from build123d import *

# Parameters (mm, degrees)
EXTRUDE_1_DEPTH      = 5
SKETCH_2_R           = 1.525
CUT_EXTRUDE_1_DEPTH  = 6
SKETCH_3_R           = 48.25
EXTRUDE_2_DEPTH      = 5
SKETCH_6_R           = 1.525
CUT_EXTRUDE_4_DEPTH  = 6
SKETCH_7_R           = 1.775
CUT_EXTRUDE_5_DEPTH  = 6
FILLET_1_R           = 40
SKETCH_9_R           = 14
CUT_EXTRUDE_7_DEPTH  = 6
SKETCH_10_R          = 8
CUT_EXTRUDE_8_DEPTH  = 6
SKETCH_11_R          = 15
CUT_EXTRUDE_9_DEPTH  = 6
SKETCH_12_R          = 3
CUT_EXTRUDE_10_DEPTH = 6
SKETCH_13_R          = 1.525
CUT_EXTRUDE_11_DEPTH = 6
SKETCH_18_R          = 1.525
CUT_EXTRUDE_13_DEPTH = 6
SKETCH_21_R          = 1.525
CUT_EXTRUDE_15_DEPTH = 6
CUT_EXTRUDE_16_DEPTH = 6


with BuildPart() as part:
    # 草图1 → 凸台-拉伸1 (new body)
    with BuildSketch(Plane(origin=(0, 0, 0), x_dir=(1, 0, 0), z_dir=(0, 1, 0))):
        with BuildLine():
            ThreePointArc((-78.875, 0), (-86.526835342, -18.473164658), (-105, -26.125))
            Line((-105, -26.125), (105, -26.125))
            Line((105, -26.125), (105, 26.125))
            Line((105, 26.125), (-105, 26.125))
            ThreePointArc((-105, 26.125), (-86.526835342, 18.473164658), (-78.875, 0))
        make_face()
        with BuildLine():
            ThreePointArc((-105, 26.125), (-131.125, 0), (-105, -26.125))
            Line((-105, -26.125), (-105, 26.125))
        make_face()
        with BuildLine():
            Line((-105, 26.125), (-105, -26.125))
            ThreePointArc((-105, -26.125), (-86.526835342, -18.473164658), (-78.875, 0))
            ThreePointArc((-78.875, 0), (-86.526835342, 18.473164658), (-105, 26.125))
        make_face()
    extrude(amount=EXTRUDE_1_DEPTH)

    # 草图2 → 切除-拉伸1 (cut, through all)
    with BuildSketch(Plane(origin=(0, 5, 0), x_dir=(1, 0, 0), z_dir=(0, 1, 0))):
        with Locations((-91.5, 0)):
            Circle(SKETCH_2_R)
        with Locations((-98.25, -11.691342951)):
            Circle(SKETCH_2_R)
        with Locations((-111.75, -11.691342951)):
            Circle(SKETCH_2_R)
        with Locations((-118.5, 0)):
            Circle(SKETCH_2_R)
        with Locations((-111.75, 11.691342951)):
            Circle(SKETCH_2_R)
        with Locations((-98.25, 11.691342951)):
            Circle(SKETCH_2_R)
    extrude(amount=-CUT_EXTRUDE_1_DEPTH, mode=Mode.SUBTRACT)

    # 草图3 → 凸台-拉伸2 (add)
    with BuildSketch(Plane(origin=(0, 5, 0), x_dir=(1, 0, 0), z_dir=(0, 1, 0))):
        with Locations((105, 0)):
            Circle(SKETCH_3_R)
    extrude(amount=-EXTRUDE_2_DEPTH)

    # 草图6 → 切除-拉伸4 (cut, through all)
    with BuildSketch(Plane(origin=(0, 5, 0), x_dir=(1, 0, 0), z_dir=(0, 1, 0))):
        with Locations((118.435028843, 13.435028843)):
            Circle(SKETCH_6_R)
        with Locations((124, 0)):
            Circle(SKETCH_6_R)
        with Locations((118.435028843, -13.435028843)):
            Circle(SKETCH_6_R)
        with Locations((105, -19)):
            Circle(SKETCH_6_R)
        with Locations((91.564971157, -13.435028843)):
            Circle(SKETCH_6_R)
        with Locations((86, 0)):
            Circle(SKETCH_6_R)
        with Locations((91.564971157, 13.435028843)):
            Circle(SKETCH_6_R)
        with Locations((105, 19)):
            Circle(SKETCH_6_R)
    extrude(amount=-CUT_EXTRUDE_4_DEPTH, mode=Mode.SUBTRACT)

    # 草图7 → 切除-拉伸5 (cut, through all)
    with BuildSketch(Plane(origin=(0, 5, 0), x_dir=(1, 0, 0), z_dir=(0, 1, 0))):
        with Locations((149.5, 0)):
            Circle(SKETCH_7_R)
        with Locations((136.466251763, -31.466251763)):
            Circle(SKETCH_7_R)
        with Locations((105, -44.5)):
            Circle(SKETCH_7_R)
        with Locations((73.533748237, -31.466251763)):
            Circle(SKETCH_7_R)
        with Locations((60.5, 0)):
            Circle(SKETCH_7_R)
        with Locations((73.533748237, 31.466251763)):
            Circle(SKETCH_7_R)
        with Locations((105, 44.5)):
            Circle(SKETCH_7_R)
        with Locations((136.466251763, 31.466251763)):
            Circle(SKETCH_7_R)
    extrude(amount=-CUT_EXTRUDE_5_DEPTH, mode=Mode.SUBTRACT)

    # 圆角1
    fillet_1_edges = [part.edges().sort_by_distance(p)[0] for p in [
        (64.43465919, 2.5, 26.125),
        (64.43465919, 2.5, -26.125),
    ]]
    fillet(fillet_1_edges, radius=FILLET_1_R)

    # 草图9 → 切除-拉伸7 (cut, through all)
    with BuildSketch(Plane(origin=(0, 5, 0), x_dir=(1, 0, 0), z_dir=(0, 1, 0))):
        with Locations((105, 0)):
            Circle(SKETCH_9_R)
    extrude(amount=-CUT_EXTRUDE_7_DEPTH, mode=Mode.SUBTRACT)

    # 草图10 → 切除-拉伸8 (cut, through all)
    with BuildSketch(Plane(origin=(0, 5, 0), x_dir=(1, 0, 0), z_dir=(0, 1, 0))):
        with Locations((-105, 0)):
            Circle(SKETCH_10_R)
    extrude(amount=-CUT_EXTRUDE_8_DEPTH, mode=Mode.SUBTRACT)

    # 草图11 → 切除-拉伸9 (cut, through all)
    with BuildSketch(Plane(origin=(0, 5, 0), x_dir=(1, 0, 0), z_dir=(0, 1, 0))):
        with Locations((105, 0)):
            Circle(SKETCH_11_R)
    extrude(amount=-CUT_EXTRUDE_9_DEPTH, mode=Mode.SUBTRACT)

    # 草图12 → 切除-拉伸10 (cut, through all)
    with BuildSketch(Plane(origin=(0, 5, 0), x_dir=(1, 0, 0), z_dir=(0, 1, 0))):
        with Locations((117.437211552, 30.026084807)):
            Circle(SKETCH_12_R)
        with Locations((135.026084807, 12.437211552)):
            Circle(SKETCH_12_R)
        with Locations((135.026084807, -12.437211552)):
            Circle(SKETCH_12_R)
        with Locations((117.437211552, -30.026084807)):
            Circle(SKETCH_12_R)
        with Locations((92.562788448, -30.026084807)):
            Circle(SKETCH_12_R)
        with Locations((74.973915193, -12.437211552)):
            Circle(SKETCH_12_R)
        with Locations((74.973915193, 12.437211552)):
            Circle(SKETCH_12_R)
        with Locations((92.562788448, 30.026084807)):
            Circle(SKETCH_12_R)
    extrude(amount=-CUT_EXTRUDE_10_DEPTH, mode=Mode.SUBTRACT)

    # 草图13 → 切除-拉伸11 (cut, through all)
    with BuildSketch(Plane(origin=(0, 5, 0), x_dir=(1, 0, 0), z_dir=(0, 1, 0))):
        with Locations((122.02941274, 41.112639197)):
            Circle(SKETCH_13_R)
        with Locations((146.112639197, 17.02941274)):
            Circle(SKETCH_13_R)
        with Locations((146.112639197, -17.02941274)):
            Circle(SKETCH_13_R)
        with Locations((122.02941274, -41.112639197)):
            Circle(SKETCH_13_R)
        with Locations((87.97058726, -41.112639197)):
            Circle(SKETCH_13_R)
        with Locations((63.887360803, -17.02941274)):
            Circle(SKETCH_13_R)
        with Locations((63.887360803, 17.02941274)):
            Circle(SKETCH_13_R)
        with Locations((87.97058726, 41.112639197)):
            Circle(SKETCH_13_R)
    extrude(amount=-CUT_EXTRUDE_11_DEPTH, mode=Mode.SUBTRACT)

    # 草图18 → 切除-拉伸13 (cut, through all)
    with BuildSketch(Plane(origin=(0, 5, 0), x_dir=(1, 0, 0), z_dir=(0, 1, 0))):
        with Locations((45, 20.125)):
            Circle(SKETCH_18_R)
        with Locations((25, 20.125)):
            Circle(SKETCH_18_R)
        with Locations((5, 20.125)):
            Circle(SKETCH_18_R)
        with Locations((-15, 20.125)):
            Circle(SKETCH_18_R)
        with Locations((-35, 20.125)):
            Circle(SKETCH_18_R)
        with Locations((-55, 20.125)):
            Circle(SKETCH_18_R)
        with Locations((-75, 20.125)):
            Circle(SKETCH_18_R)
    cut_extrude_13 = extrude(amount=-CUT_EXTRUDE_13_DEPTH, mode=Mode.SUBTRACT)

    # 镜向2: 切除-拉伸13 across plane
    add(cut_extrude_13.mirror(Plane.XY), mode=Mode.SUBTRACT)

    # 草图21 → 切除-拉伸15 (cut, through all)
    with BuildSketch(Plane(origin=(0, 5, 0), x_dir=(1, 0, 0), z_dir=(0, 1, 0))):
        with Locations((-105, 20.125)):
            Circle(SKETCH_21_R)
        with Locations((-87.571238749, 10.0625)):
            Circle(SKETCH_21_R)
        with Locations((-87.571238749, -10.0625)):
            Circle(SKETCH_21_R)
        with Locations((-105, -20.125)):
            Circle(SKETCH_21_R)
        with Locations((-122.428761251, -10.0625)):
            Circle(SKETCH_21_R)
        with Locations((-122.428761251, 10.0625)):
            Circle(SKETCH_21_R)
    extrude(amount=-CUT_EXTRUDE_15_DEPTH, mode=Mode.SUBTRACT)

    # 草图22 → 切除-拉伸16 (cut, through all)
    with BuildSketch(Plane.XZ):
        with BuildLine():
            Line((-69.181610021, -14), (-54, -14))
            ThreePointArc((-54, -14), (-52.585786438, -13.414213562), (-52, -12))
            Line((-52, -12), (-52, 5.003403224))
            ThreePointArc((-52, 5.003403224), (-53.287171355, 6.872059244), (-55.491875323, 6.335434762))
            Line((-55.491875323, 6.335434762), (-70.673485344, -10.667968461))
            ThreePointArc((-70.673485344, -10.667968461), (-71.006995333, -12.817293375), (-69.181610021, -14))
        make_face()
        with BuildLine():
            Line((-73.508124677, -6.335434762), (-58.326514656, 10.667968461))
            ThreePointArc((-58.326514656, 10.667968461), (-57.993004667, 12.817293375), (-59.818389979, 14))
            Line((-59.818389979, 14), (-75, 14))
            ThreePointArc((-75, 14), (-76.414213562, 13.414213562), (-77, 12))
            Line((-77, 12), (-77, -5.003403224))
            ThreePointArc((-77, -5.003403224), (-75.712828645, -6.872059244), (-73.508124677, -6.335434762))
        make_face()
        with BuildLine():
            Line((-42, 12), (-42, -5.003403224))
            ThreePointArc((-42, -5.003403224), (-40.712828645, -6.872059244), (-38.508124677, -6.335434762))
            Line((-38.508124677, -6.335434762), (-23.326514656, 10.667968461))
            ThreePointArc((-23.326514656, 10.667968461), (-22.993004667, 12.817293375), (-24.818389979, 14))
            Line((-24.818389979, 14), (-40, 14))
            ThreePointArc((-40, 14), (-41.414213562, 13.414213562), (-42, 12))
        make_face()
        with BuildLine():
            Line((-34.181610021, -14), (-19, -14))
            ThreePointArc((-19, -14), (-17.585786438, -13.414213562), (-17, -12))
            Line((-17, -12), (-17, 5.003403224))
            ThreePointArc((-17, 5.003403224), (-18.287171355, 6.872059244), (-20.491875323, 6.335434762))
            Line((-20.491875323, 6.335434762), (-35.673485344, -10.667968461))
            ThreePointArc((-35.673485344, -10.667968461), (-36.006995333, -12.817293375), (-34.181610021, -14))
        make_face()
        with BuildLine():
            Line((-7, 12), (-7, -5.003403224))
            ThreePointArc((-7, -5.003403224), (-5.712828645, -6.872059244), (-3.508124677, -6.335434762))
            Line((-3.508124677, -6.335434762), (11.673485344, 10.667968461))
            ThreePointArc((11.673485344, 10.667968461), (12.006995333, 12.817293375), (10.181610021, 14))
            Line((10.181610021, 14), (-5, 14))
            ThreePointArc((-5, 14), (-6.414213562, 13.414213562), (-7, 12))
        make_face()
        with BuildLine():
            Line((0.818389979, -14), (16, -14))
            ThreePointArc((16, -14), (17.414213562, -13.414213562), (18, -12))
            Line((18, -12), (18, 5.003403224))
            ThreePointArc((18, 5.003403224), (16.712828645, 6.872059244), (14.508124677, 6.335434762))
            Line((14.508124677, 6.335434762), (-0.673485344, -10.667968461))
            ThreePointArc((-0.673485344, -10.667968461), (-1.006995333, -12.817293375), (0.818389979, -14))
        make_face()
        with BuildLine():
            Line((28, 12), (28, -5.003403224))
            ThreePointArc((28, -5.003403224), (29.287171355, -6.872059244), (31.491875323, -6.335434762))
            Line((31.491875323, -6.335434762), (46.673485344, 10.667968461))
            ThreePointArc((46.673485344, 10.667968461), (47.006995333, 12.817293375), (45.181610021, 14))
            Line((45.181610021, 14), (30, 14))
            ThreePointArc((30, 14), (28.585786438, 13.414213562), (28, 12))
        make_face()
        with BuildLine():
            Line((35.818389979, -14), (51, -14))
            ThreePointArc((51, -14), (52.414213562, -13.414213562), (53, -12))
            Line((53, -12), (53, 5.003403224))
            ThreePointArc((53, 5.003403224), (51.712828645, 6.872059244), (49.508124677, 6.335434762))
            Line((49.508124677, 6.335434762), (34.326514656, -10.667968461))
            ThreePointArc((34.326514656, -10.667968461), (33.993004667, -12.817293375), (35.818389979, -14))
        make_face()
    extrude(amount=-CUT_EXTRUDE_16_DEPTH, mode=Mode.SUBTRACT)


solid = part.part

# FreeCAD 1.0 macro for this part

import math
import FreeCAD as App
import Part
import Sketcher
from FreeCAD import Vector


def edges_at(feature, points):
    """Names of the edges that pass closest to the given points."""
    edges = feature.Shape.Edges
    near = lambda p: min(range(len(edges)), key=lambda i: edges[i].distToShape(Part.Vertex(*p))[0])
    return sorted({f"Edge{near(p) + 1}" for p in points})

doc = App.newDocument("Part")
body = doc.addObject("PartDesign::Body", "Body")

# Sketch on XZ plane
sketch1 = doc.addObject("Sketcher::SketchObject", "Sketch")
body.addObject(sketch1)
sketch1.AttachmentSupport = (doc.XZ_Plane, [""])
sketch1.MapMode = "FlatFace"
sketch1.addGeometry([
    Part.LineSegment(Vector(105, 26.125, 0), Vector(105, -26.125, 0)),
    Part.LineSegment(Vector(105, -26.125, 0), Vector(-105, -26.125, 0)),
    Part.ArcOfCircle(Part.Circle(Vector(-105, 0, 0), Vector(0, 0, 1), 26.125), math.radians(90), math.radians(270)),
    Part.LineSegment(Vector(-105, 26.125, 0), Vector(105, 26.125, 0)),
], False)
sketch1.addConstraint([
    Sketcher.Constraint("Coincident", 0, 2, 1, 1),
    Sketcher.Constraint("Tangent", 1, 2, 2, 2),
    Sketcher.Constraint("Tangent", 2, 1, 3, 1),
    Sketcher.Constraint("Coincident", 3, 2, 0, 1),
    Sketcher.Constraint("Vertical", 0),
    Sketcher.Constraint("Horizontal", 1),
    Sketcher.Constraint("Horizontal", 3),
    Sketcher.Constraint("Symmetric", 0, 2, 2, 1, -1, 1),
    Sketcher.Constraint("DistanceX", 1, 2, 1, 1, 210.0),
    Sketcher.Constraint("Radius", 2, 26.125),
])
pad1 = doc.addObject("PartDesign::Pad", "Pad")
body.addObject(pad1)
pad1.Profile = sketch1
pad1.Length = 5
pad1.Reversed = True

# Sketch on XZ plane
sketch2 = doc.addObject("Sketcher::SketchObject", "Sketch001")
body.addObject(sketch2)
sketch2.AttachmentSupport = (doc.XZ_Plane, [""])
sketch2.MapMode = "FlatFace"
sketch2.AttachmentOffset = App.Placement(Vector(0, 0, -5), App.Rotation())
sketch2.addGeometry([
    Part.Circle(Vector(-91.5, 0, 0), Vector(0, 0, 1), 1.525),  # 0
    Part.Circle(Vector(-98.25, 11.691343, 0), Vector(0, 0, 1), 1.525),  # 1
    Part.Circle(Vector(-111.75, 11.691343, 0), Vector(0, 0, 1), 1.525),  # 2
    Part.Circle(Vector(-118.5, 0, 0), Vector(0, 0, 1), 1.525),  # 3
    Part.Circle(Vector(-111.75, -11.691343, 0), Vector(0, 0, 1), 1.525),  # 4
    Part.Circle(Vector(-98.25, -11.691343, 0), Vector(0, 0, 1), 1.525),  # 5
], False)
sketch2.addConstraint([
    Sketcher.Constraint("Equal", 0, 1),
    Sketcher.Constraint("Equal", 1, 2),
    Sketcher.Constraint("Equal", 2, 3),
    Sketcher.Constraint("Equal", 3, 4),
    Sketcher.Constraint("Equal", 4, 5),
    Sketcher.Constraint("Symmetric", 2, 3, 4, 3, -1),
    Sketcher.Constraint("Symmetric", 1, 3, 5, 3, -1),
    Sketcher.Constraint("PointOnObject", 0, 3, -1),
    Sketcher.Constraint("PointOnObject", 3, 3, -1),
    Sketcher.Constraint("Horizontal", 1, 3, 2, 3),
    Sketcher.Constraint("Diameter", 0, 3.05),
    Sketcher.Constraint("DistanceX", 3, 3, 0, 3, 27.0),
    Sketcher.Constraint("DistanceX", 0, 3, -1, 1, 91.5),
    Sketcher.Constraint("DistanceX", 2, 3, 1, 3, 13.5),
    Sketcher.Constraint("DistanceX", 1, 3, -1, 1, 98.25),
    Sketcher.Constraint("DistanceY", -1, 1, 1, 3, 11.691343),
])
pocket1 = doc.addObject("PartDesign::Pocket", "Pocket")
body.addObject(pocket1)
pocket1.Profile = sketch2
pocket1.Type = "ThroughAll"
pocket1.Reversed = True

# Sketch on XZ plane
sketch3 = doc.addObject("Sketcher::SketchObject", "Sketch002")
body.addObject(sketch3)
sketch3.AttachmentSupport = (doc.XZ_Plane, [""])
sketch3.MapMode = "FlatFace"
sketch3.AttachmentOffset = App.Placement(Vector(0, 0, -5), App.Rotation())
sketch3.addGeometry(Part.Circle(Vector(105, 0, 0), Vector(0, 0, 1), 48.25), False)
sketch3.addConstraint([
    Sketcher.Constraint("PointOnObject", 0, 3, -1),
    Sketcher.Constraint("Diameter", 0, 96.5),
    Sketcher.Constraint("DistanceX", -1, 1, 0, 3, 105.0),
])
pad2 = doc.addObject("PartDesign::Pad", "Pad001")
body.addObject(pad2)
pad2.Profile = sketch3
pad2.Length = 5

# Sketch on XZ plane
sketch4 = doc.addObject("Sketcher::SketchObject", "Sketch003")
body.addObject(sketch4)
sketch4.AttachmentSupport = (doc.XZ_Plane, [""])
sketch4.MapMode = "FlatFace"
sketch4.AttachmentOffset = App.Placement(Vector(0, 0, -5), App.Rotation())
sketch4.addGeometry([
    Part.Circle(Vector(118.435029, -13.435029, 0), Vector(0, 0, 1), 1.525),  # 0
    Part.Circle(Vector(124, 0, 0), Vector(0, 0, 1), 1.525),  # 1
    Part.Circle(Vector(118.435029, 13.435029, 0), Vector(0, 0, 1), 1.525),  # 2
    Part.Circle(Vector(105, 19, 0), Vector(0, 0, 1), 1.525),  # 3
    Part.Circle(Vector(91.564971, 13.435029, 0), Vector(0, 0, 1), 1.525),  # 4
    Part.Circle(Vector(86, 0, 0), Vector(0, 0, 1), 1.525),  # 5
    Part.Circle(Vector(91.564971, -13.435029, 0), Vector(0, 0, 1), 1.525),  # 6
    Part.Circle(Vector(105, -19, 0), Vector(0, 0, 1), 1.525),  # 7
], False)
sketch4.addConstraint([
    Sketcher.Constraint("Equal", 0, 1),
    Sketcher.Constraint("Equal", 1, 2),
    Sketcher.Constraint("Equal", 2, 3),
    Sketcher.Constraint("Equal", 3, 4),
    Sketcher.Constraint("Equal", 4, 5),
    Sketcher.Constraint("Equal", 5, 6),
    Sketcher.Constraint("Equal", 6, 7),
    Sketcher.Constraint("Symmetric", 0, 3, 2, 3, -1),
    Sketcher.Constraint("Symmetric", 4, 3, 6, 3, -1),
    Sketcher.Constraint("Symmetric", 3, 3, 7, 3, -1),
    Sketcher.Constraint("PointOnObject", 1, 3, -1),
    Sketcher.Constraint("PointOnObject", 5, 3, -1),
    Sketcher.Constraint("Horizontal", 2, 3, 4, 3),
    Sketcher.Constraint("Diameter", 0, 3.05),
    Sketcher.Constraint("DistanceX", -1, 1, 1, 3, 124.0),
    Sketcher.Constraint("DistanceX", -1, 1, 3, 3, 105.0),
    Sketcher.Constraint("DistanceY", -1, 1, 3, 3, 19.0),
    Sketcher.Constraint("DistanceX", -1, 1, 5, 3, 86.0),
    Sketcher.Constraint("DistanceX", -1, 1, 0, 3, 118.435029),
    Sketcher.Constraint("DistanceY", 0, 3, -1, 1, 13.435029),
    Sketcher.Constraint("DistanceX", -1, 1, 4, 3, 91.564971),
])
pocket2 = doc.addObject("PartDesign::Pocket", "Pocket001")
body.addObject(pocket2)
pocket2.Profile = sketch4
pocket2.Type = "ThroughAll"
pocket2.Reversed = True

# Sketch on XZ plane
sketch5 = doc.addObject("Sketcher::SketchObject", "Sketch004")
body.addObject(sketch5)
sketch5.AttachmentSupport = (doc.XZ_Plane, [""])
sketch5.MapMode = "FlatFace"
sketch5.AttachmentOffset = App.Placement(Vector(0, 0, -5), App.Rotation())
sketch5.addGeometry([
    Part.Circle(Vector(149.5, 0, 0), Vector(0, 0, 1), 1.775),  # 0
    Part.Circle(Vector(136.466252, 31.466252, 0), Vector(0, 0, 1), 1.775),  # 1
    Part.Circle(Vector(105, 44.5, 0), Vector(0, 0, 1), 1.775),  # 2
    Part.Circle(Vector(73.533748, 31.466252, 0), Vector(0, 0, 1), 1.775),  # 3
    Part.Circle(Vector(60.5, 0, 0), Vector(0, 0, 1), 1.775),  # 4
    Part.Circle(Vector(73.533748, -31.466252, 0), Vector(0, 0, 1), 1.775),  # 5
    Part.Circle(Vector(105, -44.5, 0), Vector(0, 0, 1), 1.775),  # 6
    Part.Circle(Vector(136.466252, -31.466252, 0), Vector(0, 0, 1), 1.775),  # 7
], False)
sketch5.addConstraint([
    Sketcher.Constraint("Equal", 0, 1),
    Sketcher.Constraint("Equal", 1, 2),
    Sketcher.Constraint("Equal", 2, 3),
    Sketcher.Constraint("Equal", 3, 4),
    Sketcher.Constraint("Equal", 4, 5),
    Sketcher.Constraint("Equal", 5, 6),
    Sketcher.Constraint("Equal", 6, 7),
    Sketcher.Constraint("Symmetric", 3, 3, 5, 3, -1),
    Sketcher.Constraint("Symmetric", 2, 3, 6, 3, -1),
    Sketcher.Constraint("Symmetric", 1, 3, 7, 3, -1),
    Sketcher.Constraint("PointOnObject", 0, 3, -1),
    Sketcher.Constraint("PointOnObject", 4, 3, -1),
    Sketcher.Constraint("Horizontal", 1, 3, 3, 3),
    Sketcher.Constraint("Diameter", 0, 3.55),
    Sketcher.Constraint("DistanceX", -1, 1, 2, 3, 105.0),
    Sketcher.Constraint("DistanceX", 4, 3, 0, 3, 89.0),
    Sketcher.Constraint("DistanceX", -1, 1, 0, 3, 149.5),
    Sketcher.Constraint("DistanceY", -1, 1, 2, 3, 44.5),
    Sketcher.Constraint("DistanceX", -1, 1, 1, 3, 136.466252),
    Sketcher.Constraint("DistanceY", -1, 1, 1, 3, 31.466252),
    Sketcher.Constraint("DistanceX", -1, 1, 3, 3, 73.533748),
])
pocket3 = doc.addObject("PartDesign::Pocket", "Pocket002")
body.addObject(pocket3)
pocket3.Profile = sketch5
pocket3.Type = "ThroughAll"
pocket3.Reversed = True
doc.recompute()

fillet = doc.addObject("PartDesign::Fillet", "Fillet")
body.addObject(fillet)
fillet.Base = (pocket3, edges_at(pocket3, [(64.435, 2.5, 26.125), (64.435, 2.5, -26.125)]))
fillet.Radius = 40

# Sketch on XZ plane
sketch6 = doc.addObject("Sketcher::SketchObject", "Sketch005")
body.addObject(sketch6)
sketch6.AttachmentSupport = (doc.XZ_Plane, [""])
sketch6.MapMode = "FlatFace"
sketch6.AttachmentOffset = App.Placement(Vector(0, 0, -5), App.Rotation())
sketch6.addGeometry(Part.Circle(Vector(105, 0, 0), Vector(0, 0, 1), 14), False)
sketch6.addConstraint([
    Sketcher.Constraint("PointOnObject", 0, 3, -1),
    Sketcher.Constraint("Diameter", 0, 28.0),
    Sketcher.Constraint("DistanceX", -1, 1, 0, 3, 105.0),
])
pocket4 = doc.addObject("PartDesign::Pocket", "Pocket003")
body.addObject(pocket4)
pocket4.Profile = sketch6
pocket4.Type = "ThroughAll"
pocket4.Reversed = True

# Sketch on XZ plane
sketch7 = doc.addObject("Sketcher::SketchObject", "Sketch006")
body.addObject(sketch7)
sketch7.AttachmentSupport = (doc.XZ_Plane, [""])
sketch7.MapMode = "FlatFace"
sketch7.AttachmentOffset = App.Placement(Vector(0, 0, -5), App.Rotation())
sketch7.addGeometry(Part.Circle(Vector(-105, 0, 0), Vector(0, 0, 1), 8), False)
sketch7.addConstraint([
    Sketcher.Constraint("PointOnObject", 0, 3, -1),
    Sketcher.Constraint("Diameter", 0, 16.0),
    Sketcher.Constraint("DistanceX", 0, 3, -1, 1, 105.0),
])
pocket5 = doc.addObject("PartDesign::Pocket", "Pocket004")
body.addObject(pocket5)
pocket5.Profile = sketch7
pocket5.Type = "ThroughAll"
pocket5.Reversed = True

# Sketch on XZ plane
sketch8 = doc.addObject("Sketcher::SketchObject", "Sketch007")
body.addObject(sketch8)
sketch8.AttachmentSupport = (doc.XZ_Plane, [""])
sketch8.MapMode = "FlatFace"
sketch8.AttachmentOffset = App.Placement(Vector(0, 0, -5), App.Rotation())
sketch8.addGeometry(Part.Circle(Vector(105, 0, 0), Vector(0, 0, 1), 15), False)
sketch8.addConstraint([
    Sketcher.Constraint("PointOnObject", 0, 3, -1),
    Sketcher.Constraint("Diameter", 0, 30.0),
    Sketcher.Constraint("DistanceX", -1, 1, 0, 3, 105.0),
])
pocket6 = doc.addObject("PartDesign::Pocket", "Pocket005")
body.addObject(pocket6)
pocket6.Profile = sketch8
pocket6.Type = "ThroughAll"
pocket6.Reversed = True

# Sketch on XZ plane
sketch9 = doc.addObject("Sketcher::SketchObject", "Sketch008")
body.addObject(sketch9)
sketch9.AttachmentSupport = (doc.XZ_Plane, [""])
sketch9.MapMode = "FlatFace"
sketch9.AttachmentOffset = App.Placement(Vector(0, 0, -5), App.Rotation())
sketch9.addGeometry([
    Part.Circle(Vector(117.437212, -30.026085, 0), Vector(0, 0, 1), 3),  # 0
    Part.Circle(Vector(135.026085, -12.437212, 0), Vector(0, 0, 1), 3),  # 1
    Part.Circle(Vector(135.026085, 12.437212, 0), Vector(0, 0, 1), 3),  # 2
    Part.Circle(Vector(117.437212, 30.026085, 0), Vector(0, 0, 1), 3),  # 3
    Part.Circle(Vector(92.562788, 30.026085, 0), Vector(0, 0, 1), 3),  # 4
    Part.Circle(Vector(74.973915, 12.437212, 0), Vector(0, 0, 1), 3),  # 5
    Part.Circle(Vector(74.973915, -12.437212, 0), Vector(0, 0, 1), 3),  # 6
    Part.Circle(Vector(92.562788, -30.026085, 0), Vector(0, 0, 1), 3),  # 7
], False)
sketch9.addConstraint([
    Sketcher.Constraint("Equal", 0, 1),
    Sketcher.Constraint("Equal", 1, 2),
    Sketcher.Constraint("Equal", 2, 3),
    Sketcher.Constraint("Equal", 3, 4),
    Sketcher.Constraint("Equal", 4, 5),
    Sketcher.Constraint("Equal", 5, 6),
    Sketcher.Constraint("Equal", 6, 7),
    Sketcher.Constraint("Symmetric", 1, 3, 2, 3, -1),
    Sketcher.Constraint("Symmetric", 0, 3, 3, 3, -1),
    Sketcher.Constraint("Symmetric", 5, 3, 6, 3, -1),
    Sketcher.Constraint("Symmetric", 4, 3, 7, 3, -1),
    Sketcher.Constraint("Horizontal", 3, 3, 4, 3),
    Sketcher.Constraint("Horizontal", 2, 3, 5, 3),
    Sketcher.Constraint("Diameter", 0, 6.0),
    Sketcher.Constraint("DistanceX", -1, 1, 0, 3, 117.437212),
    Sketcher.Constraint("DistanceY", 1, 3, -1, 1, 12.437212),
    Sketcher.Constraint("DistanceX", -1, 1, 4, 3, 92.562788),
    Sketcher.Constraint("DistanceY", 0, 3, 3, 3, 60.05217),
    Sketcher.Constraint("DistanceX", 5, 3, 2, 3, 60.05217),
    Sketcher.Constraint("DistanceX", -1, 1, 1, 3, 135.026085),
])
pocket7 = doc.addObject("PartDesign::Pocket", "Pocket006")
body.addObject(pocket7)
pocket7.Profile = sketch9
pocket7.Type = "ThroughAll"
pocket7.Reversed = True

# Sketch on XZ plane
sketch10 = doc.addObject("Sketcher::SketchObject", "Sketch009")
body.addObject(sketch10)
sketch10.AttachmentSupport = (doc.XZ_Plane, [""])
sketch10.MapMode = "FlatFace"
sketch10.AttachmentOffset = App.Placement(Vector(0, 0, -5), App.Rotation())
sketch10.addGeometry([
    Part.Circle(Vector(122.029413, -41.112639, 0), Vector(0, 0, 1), 1.525),  # 0
    Part.Circle(Vector(146.112639, -17.029413, 0), Vector(0, 0, 1), 1.525),  # 1
    Part.Circle(Vector(146.112639, 17.029413, 0), Vector(0, 0, 1), 1.525),  # 2
    Part.Circle(Vector(122.029413, 41.112639, 0), Vector(0, 0, 1), 1.525),  # 3
    Part.Circle(Vector(87.970587, 41.112639, 0), Vector(0, 0, 1), 1.525),  # 4
    Part.Circle(Vector(63.887361, 17.029413, 0), Vector(0, 0, 1), 1.525),  # 5
    Part.Circle(Vector(63.887361, -17.029413, 0), Vector(0, 0, 1), 1.525),  # 6
    Part.Circle(Vector(87.970587, -41.112639, 0), Vector(0, 0, 1), 1.525),  # 7
], False)
sketch10.addConstraint([
    Sketcher.Constraint("Equal", 0, 1),
    Sketcher.Constraint("Equal", 1, 2),
    Sketcher.Constraint("Equal", 2, 3),
    Sketcher.Constraint("Equal", 3, 4),
    Sketcher.Constraint("Equal", 4, 5),
    Sketcher.Constraint("Equal", 5, 6),
    Sketcher.Constraint("Equal", 6, 7),
    Sketcher.Constraint("Symmetric", 1, 3, 2, 3, -1),
    Sketcher.Constraint("Symmetric", 0, 3, 3, 3, -1),
    Sketcher.Constraint("Symmetric", 5, 3, 6, 3, -1),
    Sketcher.Constraint("Symmetric", 4, 3, 7, 3, -1),
    Sketcher.Constraint("Horizontal", 3, 3, 4, 3),
    Sketcher.Constraint("Horizontal", 2, 3, 5, 3),
    Sketcher.Constraint("Diameter", 0, 3.05),
    Sketcher.Constraint("DistanceY", 0, 3, -1, 1, 41.112639),
    Sketcher.Constraint("DistanceX", -1, 1, 1, 3, 146.112639),
    Sketcher.Constraint("DistanceX", -1, 1, 5, 3, 63.887361),
    Sketcher.Constraint("DistanceY", 0, 3, 2, 3, 58.142052),
    Sketcher.Constraint("DistanceX", 4, 3, 2, 3, 58.142052),
    Sketcher.Constraint("DistanceX", 5, 3, 3, 3, 58.142052),
])
pocket8 = doc.addObject("PartDesign::Pocket", "Pocket007")
body.addObject(pocket8)
pocket8.Profile = sketch10
pocket8.Type = "ThroughAll"
pocket8.Reversed = True

# Sketch on XZ plane
sketch11 = doc.addObject("Sketcher::SketchObject", "Sketch010")
body.addObject(sketch11)
sketch11.AttachmentSupport = (doc.XZ_Plane, [""])
sketch11.MapMode = "FlatFace"
sketch11.AttachmentOffset = App.Placement(Vector(0, 0, -5), App.Rotation())
sketch11.addGeometry([
    Part.Circle(Vector(45, -20.125, 0), Vector(0, 0, 1), 1.525),  # 0
    Part.Circle(Vector(25, -20.125, 0), Vector(0, 0, 1), 1.525),  # 1
    Part.Circle(Vector(5, -20.125, 0), Vector(0, 0, 1), 1.525),  # 2
    Part.Circle(Vector(-15, -20.125, 0), Vector(0, 0, 1), 1.525),  # 3
    Part.Circle(Vector(-35, -20.125, 0), Vector(0, 0, 1), 1.525),  # 4
    Part.Circle(Vector(-55, -20.125, 0), Vector(0, 0, 1), 1.525),  # 5
    Part.Circle(Vector(-75, -20.125, 0), Vector(0, 0, 1), 1.525),  # 6
], False)
sketch11.addConstraint([
    Sketcher.Constraint("Equal", 0, 1),
    Sketcher.Constraint("Equal", 1, 2),
    Sketcher.Constraint("Equal", 2, 3),
    Sketcher.Constraint("Equal", 3, 4),
    Sketcher.Constraint("Equal", 4, 5),
    Sketcher.Constraint("Equal", 5, 6),
    Sketcher.Constraint("Horizontal", 0, 3, 1, 3),
    Sketcher.Constraint("Horizontal", 1, 3, 2, 3),
    Sketcher.Constraint("Horizontal", 2, 3, 3, 3),
    Sketcher.Constraint("Horizontal", 3, 3, 4, 3),
    Sketcher.Constraint("Horizontal", 4, 3, 5, 3),
    Sketcher.Constraint("Horizontal", 5, 3, 6, 3),
    Sketcher.Constraint("Diameter", 0, 3.05),
    Sketcher.Constraint("DistanceX", -1, 1, 0, 3, 45.0),
    Sketcher.Constraint("DistanceX", -1, 1, 1, 3, 25.0),
    Sketcher.Constraint("DistanceX", -1, 1, 2, 3, 5.0),
    Sketcher.Constraint("DistanceX", 3, 3, -1, 1, 15.0),
    Sketcher.Constraint("DistanceX", 4, 3, -1, 1, 35.0),
    Sketcher.Constraint("DistanceX", 5, 3, -1, 1, 55.0),
    Sketcher.Constraint("DistanceX", 6, 3, -1, 1, 75.0),
    Sketcher.Constraint("DistanceY", 0, 3, -1, 1, 20.125),
])
pocket9 = doc.addObject("PartDesign::Pocket", "Pocket008")
body.addObject(pocket9)
pocket9.Profile = sketch11
pocket9.Type = "ThroughAll"
pocket9.Reversed = True
doc.recompute()

mirrored = doc.addObject("PartDesign::Mirrored", "Mirrored")
body.addObject(mirrored)
mirrored.Originals = [pocket9]
mirrored.MirrorPlane = (doc.XY_Plane, [""])
body.Tip = mirrored

# Sketch on XZ plane
sketch12 = doc.addObject("Sketcher::SketchObject", "Sketch011")
body.addObject(sketch12)
sketch12.AttachmentSupport = (doc.XZ_Plane, [""])
sketch12.MapMode = "FlatFace"
sketch12.AttachmentOffset = App.Placement(Vector(0, 0, -5), App.Rotation())
sketch12.addGeometry([
    Part.Circle(Vector(-105, -20.125, 0), Vector(0, 0, 1), 1.525),  # 0
    Part.Circle(Vector(-87.571239, -10.0625, 0), Vector(0, 0, 1), 1.525),  # 1
    Part.Circle(Vector(-87.571239, 10.0625, 0), Vector(0, 0, 1), 1.525),  # 2
    Part.Circle(Vector(-105, 20.125, 0), Vector(0, 0, 1), 1.525),  # 3
    Part.Circle(Vector(-122.428761, 10.0625, 0), Vector(0, 0, 1), 1.525),  # 4
    Part.Circle(Vector(-122.428761, -10.0625, 0), Vector(0, 0, 1), 1.525),  # 5
], False)
sketch12.addConstraint([
    Sketcher.Constraint("Equal", 0, 1),
    Sketcher.Constraint("Equal", 1, 2),
    Sketcher.Constraint("Equal", 2, 3),
    Sketcher.Constraint("Equal", 3, 4),
    Sketcher.Constraint("Equal", 4, 5),
    Sketcher.Constraint("Symmetric", 1, 3, 2, 3, -1),
    Sketcher.Constraint("Symmetric", 0, 3, 3, 3, -1),
    Sketcher.Constraint("Symmetric", 4, 3, 5, 3, -1),
    Sketcher.Constraint("Horizontal", 2, 3, 4, 3),
    Sketcher.Constraint("Diameter", 0, 3.05),
    Sketcher.Constraint("DistanceX", 0, 3, -1, 1, 105.0),
    Sketcher.Constraint("DistanceY", 0, 3, 3, 3, 40.25),
    Sketcher.Constraint("DistanceY", 1, 3, 2, 3, 20.125),
    Sketcher.Constraint("DistanceX", 1, 3, -1, 1, 87.571239),
    Sketcher.Constraint("DistanceX", 4, 3, -1, 1, 122.428761),
])
pocket10 = doc.addObject("PartDesign::Pocket", "Pocket009")
body.addObject(pocket10)
pocket10.Profile = sketch12
pocket10.Type = "ThroughAll"
pocket10.Reversed = True

# Sketch on XZ plane
sketch13 = doc.addObject("Sketcher::SketchObject", "Sketch012")
body.addObject(sketch13)
sketch13.AttachmentSupport = (doc.XZ_Plane, [""])
sketch13.MapMode = "FlatFace"
sketch13.addGeometry([
    Part.LineSegment(Vector(-69.18161, -14, 0), Vector(-54, -14, 0)),  # 0
    Part.ArcOfCircle(Part.Circle(Vector(-54, -12, 0), Vector(0, 0, 1), 2), math.radians(-90), math.radians(0)),  # 1
    Part.LineSegment(Vector(-52, -12, 0), Vector(-52, 5.003403, 0)),  # 2
    Part.ArcOfCircle(Part.Circle(Vector(-54, 5.003403, 0), Vector(0, 0, 1), 2), math.radians(0), math.radians(138.2397)),  # 3
    Part.LineSegment(Vector(-55.491875, 6.335435, 0), Vector(-70.673485, -10.667968, 0)),  # 4
    Part.ArcOfCircle(Part.Circle(Vector(-69.18161, -12, 0), Vector(0, 0, 1), 2), math.radians(138.2397), math.radians(270)),  # 5
    Part.LineSegment(Vector(-73.508125, -6.335435, 0), Vector(-58.326515, 10.667968, 0)),  # 6
    Part.ArcOfCircle(Part.Circle(Vector(-59.81839, 12, 0), Vector(0, 0, 1), 2), math.radians(-41.7603), math.radians(90)),  # 7
    Part.LineSegment(Vector(-59.81839, 14, 0), Vector(-75, 14, 0)),  # 8
    Part.ArcOfCircle(Part.Circle(Vector(-75, 12, 0), Vector(0, 0, 1), 2), math.radians(90), math.radians(180)),  # 9
    Part.LineSegment(Vector(-77, 12, 0), Vector(-77, -5.003403, 0)),  # 10
    Part.ArcOfCircle(Part.Circle(Vector(-75, -5.003403, 0), Vector(0, 0, 1), 2), math.radians(180), math.radians(318.2397)),  # 11
    Part.LineSegment(Vector(-42, 12, 0), Vector(-42, -5.003403, 0)),  # 12
    Part.ArcOfCircle(Part.Circle(Vector(-40, -5.003403, 0), Vector(0, 0, 1), 2), math.radians(180), math.radians(318.2397)),  # 13
    Part.LineSegment(Vector(-38.508125, -6.335435, 0), Vector(-23.326515, 10.667968, 0)),  # 14
    Part.ArcOfCircle(Part.Circle(Vector(-24.81839, 12, 0), Vector(0, 0, 1), 2), math.radians(-41.7603), math.radians(90)),  # 15
    Part.LineSegment(Vector(-24.81839, 14, 0), Vector(-40, 14, 0)),  # 16
    Part.ArcOfCircle(Part.Circle(Vector(-40, 12, 0), Vector(0, 0, 1), 2), math.radians(90), math.radians(180)),  # 17
    Part.LineSegment(Vector(-34.18161, -14, 0), Vector(-19, -14, 0)),  # 18
    Part.ArcOfCircle(Part.Circle(Vector(-19, -12, 0), Vector(0, 0, 1), 2), math.radians(-90), math.radians(0)),  # 19
    Part.LineSegment(Vector(-17, -12, 0), Vector(-17, 5.003403, 0)),  # 20
    Part.ArcOfCircle(Part.Circle(Vector(-19, 5.003403, 0), Vector(0, 0, 1), 2), math.radians(0), math.radians(138.2397)),  # 21
    Part.LineSegment(Vector(-20.491875, 6.335435, 0), Vector(-35.673485, -10.667968, 0)),  # 22
    Part.ArcOfCircle(Part.Circle(Vector(-34.18161, -12, 0), Vector(0, 0, 1), 2), math.radians(138.2397), math.radians(270)),  # 23
    Part.LineSegment(Vector(-7, 12, 0), Vector(-7, -5.003403, 0)),  # 24
    Part.ArcOfCircle(Part.Circle(Vector(-5, -5.003403, 0), Vector(0, 0, 1), 2), math.radians(180), math.radians(318.2397)),  # 25
    Part.LineSegment(Vector(-3.508125, -6.335435, 0), Vector(11.673485, 10.667968, 0)),  # 26
    Part.ArcOfCircle(Part.Circle(Vector(10.18161, 12, 0), Vector(0, 0, 1), 2), math.radians(-41.7603), math.radians(90)),  # 27
    Part.LineSegment(Vector(10.18161, 14, 0), Vector(-5, 14, 0)),  # 28
    Part.ArcOfCircle(Part.Circle(Vector(-5, 12, 0), Vector(0, 0, 1), 2), math.radians(90), math.radians(180)),  # 29
    Part.LineSegment(Vector(0.81839, -14, 0), Vector(16, -14, 0)),  # 30
    Part.ArcOfCircle(Part.Circle(Vector(16, -12, 0), Vector(0, 0, 1), 2), math.radians(-90), math.radians(0)),  # 31
    Part.LineSegment(Vector(18, -12, 0), Vector(18, 5.003403, 0)),  # 32
    Part.ArcOfCircle(Part.Circle(Vector(16, 5.003403, 0), Vector(0, 0, 1), 2), math.radians(0), math.radians(138.2397)),  # 33
    Part.LineSegment(Vector(14.508125, 6.335435, 0), Vector(-0.673485, -10.667968, 0)),  # 34
    Part.ArcOfCircle(Part.Circle(Vector(0.81839, -12, 0), Vector(0, 0, 1), 2), math.radians(138.2397), math.radians(270)),  # 35
    Part.LineSegment(Vector(28, 12, 0), Vector(28, -5.003403, 0)),  # 36
    Part.ArcOfCircle(Part.Circle(Vector(30, -5.003403, 0), Vector(0, 0, 1), 2), math.radians(180), math.radians(318.2397)),  # 37
    Part.LineSegment(Vector(31.491875, -6.335435, 0), Vector(46.673485, 10.667968, 0)),  # 38
    Part.ArcOfCircle(Part.Circle(Vector(45.18161, 12, 0), Vector(0, 0, 1), 2), math.radians(-41.7603), math.radians(90)),  # 39
    Part.LineSegment(Vector(45.18161, 14, 0), Vector(30, 14, 0)),  # 40
    Part.ArcOfCircle(Part.Circle(Vector(30, 12, 0), Vector(0, 0, 1), 2), math.radians(90), math.radians(180)),  # 41
    Part.LineSegment(Vector(35.81839, -14, 0), Vector(51, -14, 0)),  # 42
    Part.ArcOfCircle(Part.Circle(Vector(51, -12, 0), Vector(0, 0, 1), 2), math.radians(-90), math.radians(0)),  # 43
    Part.LineSegment(Vector(53, -12, 0), Vector(53, 5.003403, 0)),  # 44
    Part.ArcOfCircle(Part.Circle(Vector(51, 5.003403, 0), Vector(0, 0, 1), 2), math.radians(0), math.radians(138.2397)),  # 45
    Part.LineSegment(Vector(49.508125, 6.335435, 0), Vector(34.326515, -10.667968, 0)),  # 46
    Part.ArcOfCircle(Part.Circle(Vector(35.81839, -12, 0), Vector(0, 0, 1), 2), math.radians(138.2397), math.radians(270)),  # 47
], False)
sketch13.addConstraint([
    Sketcher.Constraint("Tangent", 0, 2, 1, 1),
    Sketcher.Constraint("Tangent", 1, 2, 2, 1),
    Sketcher.Constraint("Tangent", 2, 2, 3, 1),
    Sketcher.Constraint("Tangent", 3, 2, 4, 1),
    Sketcher.Constraint("Tangent", 4, 2, 5, 1),
    Sketcher.Constraint("Tangent", 5, 2, 0, 1),
    Sketcher.Constraint("Tangent", 6, 2, 7, 1),
    Sketcher.Constraint("Tangent", 7, 2, 8, 1),
    Sketcher.Constraint("Tangent", 8, 2, 9, 1),
    Sketcher.Constraint("Tangent", 9, 2, 10, 1),
    Sketcher.Constraint("Tangent", 10, 2, 11, 1),
    Sketcher.Constraint("Tangent", 11, 2, 6, 1),
    Sketcher.Constraint("Tangent", 12, 2, 13, 1),
    Sketcher.Constraint("Tangent", 13, 2, 14, 1),
    Sketcher.Constraint("Tangent", 14, 2, 15, 1),
    Sketcher.Constraint("Tangent", 15, 2, 16, 1),
    Sketcher.Constraint("Tangent", 16, 2, 17, 1),
    Sketcher.Constraint("Tangent", 17, 2, 12, 1),
    Sketcher.Constraint("Tangent", 18, 2, 19, 1),
    Sketcher.Constraint("Tangent", 19, 2, 20, 1),
    Sketcher.Constraint("Tangent", 20, 2, 21, 1),
    Sketcher.Constraint("Tangent", 21, 2, 22, 1),
    Sketcher.Constraint("Tangent", 22, 2, 23, 1),
    Sketcher.Constraint("Tangent", 23, 2, 18, 1),
    Sketcher.Constraint("Tangent", 24, 2, 25, 1),
    Sketcher.Constraint("Tangent", 25, 2, 26, 1),
    Sketcher.Constraint("Tangent", 26, 2, 27, 1),
    Sketcher.Constraint("Tangent", 27, 2, 28, 1),
    Sketcher.Constraint("Tangent", 28, 2, 29, 1),
    Sketcher.Constraint("Tangent", 29, 2, 24, 1),
    Sketcher.Constraint("Tangent", 30, 2, 31, 1),
    Sketcher.Constraint("Tangent", 31, 2, 32, 1),
    Sketcher.Constraint("Tangent", 32, 2, 33, 1),
    Sketcher.Constraint("Tangent", 33, 2, 34, 1),
    Sketcher.Constraint("Tangent", 34, 2, 35, 1),
    Sketcher.Constraint("Tangent", 35, 2, 30, 1),
    Sketcher.Constraint("Tangent", 36, 2, 37, 1),
    Sketcher.Constraint("Tangent", 37, 2, 38, 1),
    Sketcher.Constraint("Tangent", 38, 2, 39, 1),
    Sketcher.Constraint("Tangent", 39, 2, 40, 1),
    Sketcher.Constraint("Tangent", 40, 2, 41, 1),
    Sketcher.Constraint("Tangent", 41, 2, 36, 1),
    Sketcher.Constraint("Tangent", 42, 2, 43, 1),
    Sketcher.Constraint("Tangent", 43, 2, 44, 1),
    Sketcher.Constraint("Tangent", 44, 2, 45, 1),
    Sketcher.Constraint("Tangent", 45, 2, 46, 1),
    Sketcher.Constraint("Tangent", 46, 2, 47, 1),
    Sketcher.Constraint("Tangent", 47, 2, 42, 1),
    Sketcher.Constraint("Horizontal", 0),
    Sketcher.Constraint("Vertical", 2),
    Sketcher.Constraint("Horizontal", 8),
    Sketcher.Constraint("Vertical", 10),
    Sketcher.Constraint("Vertical", 12),
    Sketcher.Constraint("Horizontal", 16),
    Sketcher.Constraint("Horizontal", 18),
    Sketcher.Constraint("Vertical", 20),
    Sketcher.Constraint("Vertical", 24),
    Sketcher.Constraint("Horizontal", 28),
    Sketcher.Constraint("Horizontal", 30),
    Sketcher.Constraint("Vertical", 32),
    Sketcher.Constraint("Vertical", 36),
    Sketcher.Constraint("Horizontal", 40),
    Sketcher.Constraint("Horizontal", 42),
    Sketcher.Constraint("Vertical", 44),
    Sketcher.Constraint("Equal", 1, 3),
    Sketcher.Constraint("Equal", 3, 5),
    Sketcher.Constraint("Equal", 5, 7),
    Sketcher.Constraint("Equal", 7, 9),
    Sketcher.Constraint("Equal", 9, 11),
    Sketcher.Constraint("Equal", 11, 13),
    Sketcher.Constraint("Equal", 13, 15),
    Sketcher.Constraint("Equal", 15, 17),
    Sketcher.Constraint("Equal", 17, 19),
    Sketcher.Constraint("Equal", 19, 21),
    Sketcher.Constraint("Equal", 21, 23),
    Sketcher.Constraint("Equal", 23, 25),
    Sketcher.Constraint("Equal", 25, 27),
    Sketcher.Constraint("Equal", 27, 29),
    Sketcher.Constraint("Equal", 29, 31),
    Sketcher.Constraint("Equal", 31, 33),
    Sketcher.Constraint("Equal", 33, 35),
    Sketcher.Constraint("Equal", 35, 37),
    Sketcher.Constraint("Equal", 37, 39),
    Sketcher.Constraint("Equal", 39, 41),
    Sketcher.Constraint("Equal", 41, 43),
    Sketcher.Constraint("Equal", 43, 45),
    Sketcher.Constraint("Equal", 45, 47),
    Sketcher.Constraint("Parallel", 4, 6),
    Sketcher.Constraint("Parallel", 6, 14),
    Sketcher.Constraint("Parallel", 14, 22),
    Sketcher.Constraint("Parallel", 22, 26),
    Sketcher.Constraint("Parallel", 26, 34),
    Sketcher.Constraint("Parallel", 34, 38),
    Sketcher.Constraint("Parallel", 38, 46),
    Sketcher.Constraint("Horizontal", 11, 3, 13, 3),
    Sketcher.Constraint("Horizontal", 9, 3, 15, 3),
    Sketcher.Constraint("Horizontal", 5, 3, 19, 3),
    Sketcher.Constraint("Horizontal", 3, 3, 21, 3),
    Sketcher.Constraint("Horizontal", 13, 3, 25, 3),
    Sketcher.Constraint("Horizontal", 17, 3, 27, 3),
    Sketcher.Constraint("Horizontal", 23, 3, 31, 3),
    Sketcher.Constraint("Horizontal", 21, 3, 33, 3),
    Sketcher.Constraint("Horizontal", 25, 3, 37, 3),
    Sketcher.Constraint("Horizontal", 29, 3, 39, 3),
    Sketcher.Constraint("Horizontal", 35, 3, 43, 3),
    Sketcher.Constraint("Horizontal", 33, 3, 45, 3),
    Sketcher.Constraint("Equal", 0, 8),
    Sketcher.Constraint("Radius", 1, 2.0),
    Sketcher.Constraint("DistanceX", 1, 3, -1, 1, 54.0),
    Sketcher.Constraint("DistanceY", 1, 3, -1, 1, 12.0),
    Sketcher.Constraint("DistanceY", -1, 1, 7, 3, 12.0),
    Sketcher.Constraint("DistanceX", 9, 3, -1, 1, 75.0),
    Sketcher.Constraint("DistanceX", 13, 3, -1, 1, 40.0),
    Sketcher.Constraint("DistanceX", 19, 3, -1, 1, 19.0),
    Sketcher.Constraint("DistanceX", 25, 3, -1, 1, 5.0),
    Sketcher.Constraint("DistanceX", -1, 1, 31, 3, 16.0),
    Sketcher.Constraint("DistanceX", -1, 1, 37, 3, 30.0),
    Sketcher.Constraint("DistanceX", -1, 1, 43, 3, 51.0),
    Sketcher.Constraint("DistanceX", 0, 1, 0, 2, 15.18161),
    Sketcher.Constraint("Distance", 4, 22.794671),
])
pocket11 = doc.addObject("PartDesign::Pocket", "Pocket010")
body.addObject(pocket11)
pocket11.Profile = sketch13
pocket11.Type = "ThroughAll"

doc.recompute()
